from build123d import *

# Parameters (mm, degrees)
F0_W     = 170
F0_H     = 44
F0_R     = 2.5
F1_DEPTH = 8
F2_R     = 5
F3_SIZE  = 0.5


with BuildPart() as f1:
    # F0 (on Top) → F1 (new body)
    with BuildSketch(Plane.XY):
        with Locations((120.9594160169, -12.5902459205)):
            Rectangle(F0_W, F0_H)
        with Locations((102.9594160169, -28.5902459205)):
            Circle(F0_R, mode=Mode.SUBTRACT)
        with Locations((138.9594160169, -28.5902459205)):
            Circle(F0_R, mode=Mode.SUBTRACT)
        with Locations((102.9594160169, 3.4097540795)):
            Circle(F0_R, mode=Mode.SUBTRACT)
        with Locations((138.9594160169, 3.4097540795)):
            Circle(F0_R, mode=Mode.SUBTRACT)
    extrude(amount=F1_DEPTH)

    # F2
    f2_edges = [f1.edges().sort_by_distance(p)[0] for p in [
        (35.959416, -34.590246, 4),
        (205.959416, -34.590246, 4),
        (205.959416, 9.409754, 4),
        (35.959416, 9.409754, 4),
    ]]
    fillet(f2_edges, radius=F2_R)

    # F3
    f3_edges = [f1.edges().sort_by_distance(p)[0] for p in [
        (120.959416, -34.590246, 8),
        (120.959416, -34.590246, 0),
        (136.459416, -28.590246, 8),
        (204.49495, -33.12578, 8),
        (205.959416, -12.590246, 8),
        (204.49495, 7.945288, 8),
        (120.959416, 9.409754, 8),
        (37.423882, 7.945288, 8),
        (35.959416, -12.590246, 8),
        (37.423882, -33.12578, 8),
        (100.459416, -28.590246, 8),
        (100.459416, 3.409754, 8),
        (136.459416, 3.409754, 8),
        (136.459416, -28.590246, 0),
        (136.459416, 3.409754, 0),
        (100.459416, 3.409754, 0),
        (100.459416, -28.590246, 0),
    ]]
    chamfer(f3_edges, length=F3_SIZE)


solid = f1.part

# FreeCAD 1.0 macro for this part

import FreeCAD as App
import Part
import Sketcher
from FreeCAD import Vector
Q = App.Units.Quantity


def edges_at(feature, points):
    """Names of the edges that pass closest to the given points."""
    edges = feature.Shape.Edges
    near = lambda p: min(range(len(edges)), key=lambda i: edges[i].distToShape(Part.Vertex(*p))[0])
    return sorted({f"Edge{near(p) + 1}" for p in points})

doc = App.newDocument("Part")
params = doc.addObject("Spreadsheet::Sheet", "Params")
for row, (alias, value) in enumerate([
    ("sketch1_diameter", "5 mm"),
    ("sketch1_width", "170 mm"),
    ("sketch1_height", "44 mm"),
    ("pad1_length", "8 mm"),
    ("fillet_radius", "5 mm"),
    ("chamfer_size", "0.5 mm"),
], start=1):
    params.set(f"A{row}", alias)
    params.set(f"B{row}", "=" + value)
    params.setAlias(f"B{row}", alias)

body = doc.addObject("PartDesign::Body", "Body")

# Sketch on XY plane
sketch1 = doc.addObject("Sketcher::SketchObject", "Sketch")
body.addObject(sketch1)
sketch1.AttachmentSupport = (doc.XY_Plane, [""])
sketch1.MapMode = "FlatFace"
sketch1.addGeometry(Part.LineSegment(Vector(36, 9.4, 0), Vector(36, -34.6, 0)), False)
sketch1.addGeometry(Part.LineSegment(Vector(36, -34.6, 0), Vector(206, -34.6, 0)), False)
sketch1.addGeometry(Part.LineSegment(Vector(206, -34.6, 0), Vector(206, 9.4, 0)), False)
sketch1.addGeometry(Part.LineSegment(Vector(206, 9.4, 0), Vector(36, 9.4, 0)), False)
sketch1.addGeometry(Part.Circle(Vector(103, -28.6, 0), Vector(0, 0, 1), 2.5), False)
sketch1.addGeometry(Part.Circle(Vector(139, -28.6, 0), Vector(0, 0, 1), 2.5), False)
sketch1.addGeometry(Part.Circle(Vector(103, 3.4, 0), Vector(0, 0, 1), 2.5), False)
sketch1.addGeometry(Part.Circle(Vector(139, 3.4, 0), Vector(0, 0, 1), 2.5), False)
sketch1.addConstraint(Sketcher.Constraint("Coincident", 0, 2, 1, 1))
sketch1.addConstraint(Sketcher.Constraint("Coincident", 1, 2, 2, 1))
sketch1.addConstraint(Sketcher.Constraint("Coincident", 2, 2, 3, 1))
sketch1.addConstraint(Sketcher.Constraint("Coincident", 3, 2, 0, 1))
sketch1.addConstraint(Sketcher.Constraint("Vertical", 0))
sketch1.addConstraint(Sketcher.Constraint("Horizontal", 1))
sketch1.addConstraint(Sketcher.Constraint("Vertical", 2))
sketch1.addConstraint(Sketcher.Constraint("Horizontal", 3))
sketch1.addConstraint(Sketcher.Constraint("Equal", 4, 5))
sketch1.addConstraint(Sketcher.Constraint("Equal", 5, 6))
sketch1.addConstraint(Sketcher.Constraint("Equal", 6, 7))
sketch1.addConstraint(Sketcher.Constraint("Horizontal", 4, 3, 5, 3))
sketch1.addConstraint(Sketcher.Constraint("Horizontal", 6, 3, 7, 3))
sketch1.addConstraint(Sketcher.Constraint("Vertical", 4, 3, 6, 3))
sketch1.addConstraint(Sketcher.Constraint("Vertical", 5, 3, 7, 3))
sketch1.addConstraint(Sketcher.Constraint("Diameter", 4, Q("5 mm")))
sketch1.addConstraint(Sketcher.Constraint("DistanceX", 1, 1, 1, 2, Q("170 mm")))
sketch1.addConstraint(Sketcher.Constraint("DistanceY", 0, 2, 0, 1, Q("44 mm")))
sketch1.addConstraint(Sketcher.Constraint("DistanceX", 4, 3, 5, 3, Q("36 mm")))
sketch1.addConstraint(Sketcher.Constraint("DistanceY", 4, 3, 6, 3, Q("32 mm")))
sketch1.addConstraint(Sketcher.Constraint("DistanceX", 0, 2, 4, 3, Q("67 mm")))
sketch1.addConstraint(Sketcher.Constraint("DistanceY", 0, 2, 4, 3, Q("6 mm")))
sketch1.addConstraint(Sketcher.Constraint("DistanceX", -1, 1, 4, 3, Q("102.959416 mm")))
sketch1.addConstraint(Sketcher.Constraint("DistanceY", 4, 3, -1, 1, Q("28.590246 mm")))
sketch1.setExpression("Constraints[15]", "Params.sketch1_diameter")
sketch1.setExpression("Constraints[16]", "Params.sketch1_width")
sketch1.setExpression("Constraints[17]", "Params.sketch1_height")
pad1 = doc.addObject("PartDesign::Pad", "Pad")
body.addObject(pad1)
pad1.Profile = sketch1
pad1.setExpression("Length", "Params.pad1_length")
doc.recompute()

fillet = doc.addObject("PartDesign::Fillet", "Fillet")
body.addObject(fillet)
fillet.Base = (pad1, edges_at(pad1, [
    (35.959, -34.59, 4),
    (205.959, -34.59, 4),
    (205.959, 9.41, 4),
    (35.959, 9.41, 4),
]))
fillet.setExpression("Radius", "Params.fillet_radius")
doc.recompute()

chamfer = doc.addObject("PartDesign::Chamfer", "Chamfer")
body.addObject(chamfer)
chamfer.Base = (fillet, edges_at(fillet, [
    (120.959, -34.59, 8),
    (120.959, -34.59, 0),
    (136.459, -28.59, 8),
    (204.495, -33.126, 8),
    (205.959, -12.59, 8),
    (204.495, 7.945, 8),
    (120.959, 9.41, 8),
    (37.424, 7.945, 8),
    (35.959, -12.59, 8),
    (37.424, -33.126, 8),
    (100.459, -28.59, 8),
    (100.459, 3.41, 8),
    (136.459, 3.41, 8),
    (136.459, -28.59, 0),
    (136.459, 3.41, 0),
    (100.459, 3.41, 0),
    (100.459, -28.59, 0),
]))
chamfer.setExpression("Size", "Params.chamfer_size")

doc.recompute()
